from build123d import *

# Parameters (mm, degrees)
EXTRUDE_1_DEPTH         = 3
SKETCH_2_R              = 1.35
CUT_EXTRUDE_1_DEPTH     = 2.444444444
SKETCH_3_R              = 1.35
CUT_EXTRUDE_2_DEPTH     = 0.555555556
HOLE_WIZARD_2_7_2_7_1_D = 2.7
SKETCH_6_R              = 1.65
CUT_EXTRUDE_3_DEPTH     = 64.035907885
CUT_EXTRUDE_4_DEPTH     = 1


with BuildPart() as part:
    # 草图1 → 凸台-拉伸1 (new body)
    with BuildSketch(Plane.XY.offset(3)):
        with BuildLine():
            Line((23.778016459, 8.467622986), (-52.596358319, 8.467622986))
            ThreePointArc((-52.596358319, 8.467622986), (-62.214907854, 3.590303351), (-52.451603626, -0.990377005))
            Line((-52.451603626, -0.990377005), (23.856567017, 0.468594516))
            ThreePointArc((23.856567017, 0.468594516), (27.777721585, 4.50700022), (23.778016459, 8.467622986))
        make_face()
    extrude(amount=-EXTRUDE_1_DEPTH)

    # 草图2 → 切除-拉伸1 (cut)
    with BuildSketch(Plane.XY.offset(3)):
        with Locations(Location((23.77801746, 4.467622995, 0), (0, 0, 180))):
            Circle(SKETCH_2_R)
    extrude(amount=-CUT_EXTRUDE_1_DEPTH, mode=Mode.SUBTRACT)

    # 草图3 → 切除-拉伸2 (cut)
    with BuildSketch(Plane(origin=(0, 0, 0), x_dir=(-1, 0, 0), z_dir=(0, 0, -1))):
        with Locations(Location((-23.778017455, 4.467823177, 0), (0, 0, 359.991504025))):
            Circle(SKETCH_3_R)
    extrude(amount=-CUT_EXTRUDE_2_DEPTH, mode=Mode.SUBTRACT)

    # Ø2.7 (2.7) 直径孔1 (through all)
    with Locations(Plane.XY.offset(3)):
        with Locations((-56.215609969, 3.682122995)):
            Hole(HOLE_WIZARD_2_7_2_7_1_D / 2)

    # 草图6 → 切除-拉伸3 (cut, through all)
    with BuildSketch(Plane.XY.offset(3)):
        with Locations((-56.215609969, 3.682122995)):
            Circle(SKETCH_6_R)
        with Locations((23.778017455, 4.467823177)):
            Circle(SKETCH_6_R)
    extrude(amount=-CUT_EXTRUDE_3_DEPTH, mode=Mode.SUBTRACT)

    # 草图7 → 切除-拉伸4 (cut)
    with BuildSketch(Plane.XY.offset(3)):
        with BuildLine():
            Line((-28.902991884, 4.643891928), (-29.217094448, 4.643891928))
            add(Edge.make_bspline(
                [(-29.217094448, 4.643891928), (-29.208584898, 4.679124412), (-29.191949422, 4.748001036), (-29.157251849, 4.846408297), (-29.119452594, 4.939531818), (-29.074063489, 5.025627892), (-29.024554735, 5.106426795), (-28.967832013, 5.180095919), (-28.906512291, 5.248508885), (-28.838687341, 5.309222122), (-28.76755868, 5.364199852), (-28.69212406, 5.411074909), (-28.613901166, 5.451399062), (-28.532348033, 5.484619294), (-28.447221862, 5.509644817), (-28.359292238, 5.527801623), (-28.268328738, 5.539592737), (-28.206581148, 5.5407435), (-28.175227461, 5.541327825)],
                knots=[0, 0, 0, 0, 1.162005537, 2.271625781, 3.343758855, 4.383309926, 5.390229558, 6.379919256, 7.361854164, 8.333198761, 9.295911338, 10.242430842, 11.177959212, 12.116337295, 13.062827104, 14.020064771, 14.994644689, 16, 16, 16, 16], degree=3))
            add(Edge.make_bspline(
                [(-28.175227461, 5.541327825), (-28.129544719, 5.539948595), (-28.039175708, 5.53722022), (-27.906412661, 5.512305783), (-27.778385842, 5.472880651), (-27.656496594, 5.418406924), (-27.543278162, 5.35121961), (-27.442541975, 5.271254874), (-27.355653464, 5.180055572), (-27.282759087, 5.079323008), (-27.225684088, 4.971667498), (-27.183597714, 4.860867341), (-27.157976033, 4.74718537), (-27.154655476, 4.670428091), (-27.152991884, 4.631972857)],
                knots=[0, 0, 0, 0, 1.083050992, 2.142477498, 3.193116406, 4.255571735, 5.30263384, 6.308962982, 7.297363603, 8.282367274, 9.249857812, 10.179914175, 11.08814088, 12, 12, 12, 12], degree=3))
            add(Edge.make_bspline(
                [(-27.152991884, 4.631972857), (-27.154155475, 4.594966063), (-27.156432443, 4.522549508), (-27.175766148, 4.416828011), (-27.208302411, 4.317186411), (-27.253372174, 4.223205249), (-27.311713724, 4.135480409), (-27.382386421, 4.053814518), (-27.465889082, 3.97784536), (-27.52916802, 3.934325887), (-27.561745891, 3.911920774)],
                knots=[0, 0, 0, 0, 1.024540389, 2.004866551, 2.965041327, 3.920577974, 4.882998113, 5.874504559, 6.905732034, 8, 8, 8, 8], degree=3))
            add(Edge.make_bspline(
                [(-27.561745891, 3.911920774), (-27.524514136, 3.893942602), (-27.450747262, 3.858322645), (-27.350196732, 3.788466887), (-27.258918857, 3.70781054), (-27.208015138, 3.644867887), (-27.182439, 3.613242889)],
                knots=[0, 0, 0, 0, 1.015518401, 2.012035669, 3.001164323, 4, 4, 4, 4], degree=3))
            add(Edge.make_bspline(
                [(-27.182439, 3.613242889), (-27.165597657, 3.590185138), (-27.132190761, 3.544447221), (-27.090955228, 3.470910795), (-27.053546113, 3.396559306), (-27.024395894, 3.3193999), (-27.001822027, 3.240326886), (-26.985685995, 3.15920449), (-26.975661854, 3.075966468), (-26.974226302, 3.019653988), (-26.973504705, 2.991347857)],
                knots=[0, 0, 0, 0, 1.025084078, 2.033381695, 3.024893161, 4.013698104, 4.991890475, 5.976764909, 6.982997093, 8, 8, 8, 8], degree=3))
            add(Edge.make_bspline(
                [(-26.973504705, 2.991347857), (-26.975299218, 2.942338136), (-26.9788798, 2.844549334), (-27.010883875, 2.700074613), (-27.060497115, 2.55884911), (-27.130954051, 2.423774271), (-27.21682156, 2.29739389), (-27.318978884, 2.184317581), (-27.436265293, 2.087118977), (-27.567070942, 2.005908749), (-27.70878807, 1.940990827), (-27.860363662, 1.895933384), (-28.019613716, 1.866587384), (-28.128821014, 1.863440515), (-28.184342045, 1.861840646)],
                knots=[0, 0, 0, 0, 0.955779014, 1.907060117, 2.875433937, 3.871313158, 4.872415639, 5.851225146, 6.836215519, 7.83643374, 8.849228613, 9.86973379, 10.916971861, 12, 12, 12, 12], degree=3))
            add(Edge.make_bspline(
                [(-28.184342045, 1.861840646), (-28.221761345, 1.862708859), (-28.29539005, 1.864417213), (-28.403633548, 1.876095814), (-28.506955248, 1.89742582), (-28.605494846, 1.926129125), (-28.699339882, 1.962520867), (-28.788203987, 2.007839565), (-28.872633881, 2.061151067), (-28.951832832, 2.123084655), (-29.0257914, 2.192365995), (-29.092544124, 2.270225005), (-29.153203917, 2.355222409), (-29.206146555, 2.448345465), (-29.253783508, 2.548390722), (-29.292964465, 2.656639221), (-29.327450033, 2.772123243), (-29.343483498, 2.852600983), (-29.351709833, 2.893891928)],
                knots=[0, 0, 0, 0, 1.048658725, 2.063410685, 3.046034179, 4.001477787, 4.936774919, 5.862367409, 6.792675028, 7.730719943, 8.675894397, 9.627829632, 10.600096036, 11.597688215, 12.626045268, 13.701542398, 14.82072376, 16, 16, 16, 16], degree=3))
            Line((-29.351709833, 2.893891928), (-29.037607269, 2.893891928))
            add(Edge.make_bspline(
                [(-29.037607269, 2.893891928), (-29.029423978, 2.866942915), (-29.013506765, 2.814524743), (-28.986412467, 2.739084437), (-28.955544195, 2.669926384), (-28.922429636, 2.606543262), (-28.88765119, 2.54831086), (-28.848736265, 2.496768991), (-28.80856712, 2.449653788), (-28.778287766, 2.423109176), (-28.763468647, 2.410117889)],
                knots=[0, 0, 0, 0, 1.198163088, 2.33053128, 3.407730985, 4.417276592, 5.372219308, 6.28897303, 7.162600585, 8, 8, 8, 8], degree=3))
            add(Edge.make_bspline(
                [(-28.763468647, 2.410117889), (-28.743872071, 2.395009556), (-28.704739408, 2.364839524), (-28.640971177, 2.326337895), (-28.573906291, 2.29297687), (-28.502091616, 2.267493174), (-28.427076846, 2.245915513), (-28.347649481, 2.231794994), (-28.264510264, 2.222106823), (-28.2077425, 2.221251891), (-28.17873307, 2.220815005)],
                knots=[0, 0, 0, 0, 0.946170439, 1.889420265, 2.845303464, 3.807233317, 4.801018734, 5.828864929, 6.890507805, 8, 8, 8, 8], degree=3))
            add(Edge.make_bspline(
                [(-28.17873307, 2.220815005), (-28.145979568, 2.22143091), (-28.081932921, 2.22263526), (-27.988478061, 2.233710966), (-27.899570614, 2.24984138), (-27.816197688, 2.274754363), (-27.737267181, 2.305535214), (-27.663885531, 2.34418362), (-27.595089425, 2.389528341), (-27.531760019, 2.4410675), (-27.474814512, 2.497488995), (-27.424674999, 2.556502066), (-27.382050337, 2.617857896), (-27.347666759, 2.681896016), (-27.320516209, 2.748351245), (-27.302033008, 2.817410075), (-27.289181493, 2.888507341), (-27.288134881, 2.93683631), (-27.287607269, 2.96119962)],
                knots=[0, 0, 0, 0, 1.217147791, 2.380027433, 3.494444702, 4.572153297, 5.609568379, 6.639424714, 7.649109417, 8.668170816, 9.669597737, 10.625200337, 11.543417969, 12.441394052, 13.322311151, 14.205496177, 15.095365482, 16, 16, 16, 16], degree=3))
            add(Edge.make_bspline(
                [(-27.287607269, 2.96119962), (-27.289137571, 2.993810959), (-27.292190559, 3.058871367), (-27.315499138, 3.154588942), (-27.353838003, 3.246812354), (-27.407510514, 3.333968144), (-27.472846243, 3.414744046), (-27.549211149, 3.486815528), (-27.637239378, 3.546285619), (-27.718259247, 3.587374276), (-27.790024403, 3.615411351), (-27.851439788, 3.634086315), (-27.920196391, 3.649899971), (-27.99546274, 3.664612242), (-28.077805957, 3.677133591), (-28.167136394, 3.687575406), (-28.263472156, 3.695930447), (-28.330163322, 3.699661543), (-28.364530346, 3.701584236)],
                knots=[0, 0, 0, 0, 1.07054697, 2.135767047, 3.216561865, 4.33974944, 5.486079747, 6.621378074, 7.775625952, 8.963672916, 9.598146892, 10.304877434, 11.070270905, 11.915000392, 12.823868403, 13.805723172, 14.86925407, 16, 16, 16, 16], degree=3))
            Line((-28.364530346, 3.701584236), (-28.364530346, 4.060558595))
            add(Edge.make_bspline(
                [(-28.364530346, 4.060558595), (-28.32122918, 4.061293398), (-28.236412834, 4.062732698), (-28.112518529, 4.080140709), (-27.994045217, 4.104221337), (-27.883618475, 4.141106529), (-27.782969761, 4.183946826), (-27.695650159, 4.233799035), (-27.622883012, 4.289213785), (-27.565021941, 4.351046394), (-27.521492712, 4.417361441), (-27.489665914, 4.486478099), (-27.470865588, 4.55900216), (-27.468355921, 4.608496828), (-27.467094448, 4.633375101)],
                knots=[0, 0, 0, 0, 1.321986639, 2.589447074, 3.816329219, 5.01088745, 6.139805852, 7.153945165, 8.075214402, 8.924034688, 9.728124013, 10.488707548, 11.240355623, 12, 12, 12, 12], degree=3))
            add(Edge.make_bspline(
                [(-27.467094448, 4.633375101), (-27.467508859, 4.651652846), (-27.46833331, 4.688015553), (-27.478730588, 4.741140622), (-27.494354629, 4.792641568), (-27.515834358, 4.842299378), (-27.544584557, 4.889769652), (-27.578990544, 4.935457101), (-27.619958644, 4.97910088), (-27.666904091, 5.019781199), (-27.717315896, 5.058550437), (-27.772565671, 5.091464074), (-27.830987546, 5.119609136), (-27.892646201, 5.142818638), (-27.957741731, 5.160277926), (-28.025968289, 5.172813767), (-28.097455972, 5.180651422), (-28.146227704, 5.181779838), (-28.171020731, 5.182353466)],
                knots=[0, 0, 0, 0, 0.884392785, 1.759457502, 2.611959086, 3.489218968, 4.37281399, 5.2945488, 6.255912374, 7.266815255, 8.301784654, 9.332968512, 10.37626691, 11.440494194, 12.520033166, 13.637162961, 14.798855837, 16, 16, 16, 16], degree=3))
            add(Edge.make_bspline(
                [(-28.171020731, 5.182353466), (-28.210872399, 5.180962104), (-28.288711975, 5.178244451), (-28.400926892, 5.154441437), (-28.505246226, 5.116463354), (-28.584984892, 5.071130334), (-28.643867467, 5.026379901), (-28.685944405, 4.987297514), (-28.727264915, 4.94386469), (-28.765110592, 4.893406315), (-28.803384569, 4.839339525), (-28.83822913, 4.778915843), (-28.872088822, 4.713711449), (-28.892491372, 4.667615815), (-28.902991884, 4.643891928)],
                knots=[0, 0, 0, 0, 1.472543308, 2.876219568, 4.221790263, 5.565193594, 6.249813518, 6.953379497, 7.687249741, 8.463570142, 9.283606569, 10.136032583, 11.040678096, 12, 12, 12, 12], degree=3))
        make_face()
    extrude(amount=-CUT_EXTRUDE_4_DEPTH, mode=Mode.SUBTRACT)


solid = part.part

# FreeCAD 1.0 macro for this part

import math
import FreeCAD as App
import Part
import Sketcher

V = App.Vector

doc = App.newDocument("Part")
params = doc.addObject("Spreadsheet::Sheet", "Params")
for row, (alias, value) in enumerate([
    ("sketch1_radius", "6 mm"),
    ("pad1_length", "3 mm"),
    ("sketch2_diameter", "2.7 mm"),
    ("pocket1_length", "2.444444 mm"),
    ("sketch3_diameter", "2.7 mm"),
    ("pocket2_length", "0.555556 mm"),
    ("sketch4_diameter", "2.7 mm"),
    ("hole_diameter", "2.7 mm"),
    ("sketch5_diameter", "3.3 mm"),
    ("pocket4_length", "1 mm"),
], start=1):
    params.set(f"A{row}", alias)
    params.set(f"B{row}", "=" + value)
    params.setAlias(f"B{row}", alias)

body = doc.addObject("PartDesign::Body", "Body")

# Sketch on XY plane
sketch1 = doc.addObject("Sketcher::SketchObject", "Sketch")
body.addObject(sketch1)
sketch1.AttachmentSupport = (doc.XY_Plane, [""])
sketch1.MapMode = "FlatFace"
sketch1.AttachmentOffset = App.Placement(V(0, 0, 3), App.Rotation())
sketch1.addGeometry([
    Part.LineSegment(V(23.8, 8.5, 0), V(-52.6, 8.5, 0)),
    Part.ArcOfCircle(Part.Circle(V(-56.2, 3.7, 0), V(0, 0, 1), 6), math.radians(53), math.radians(309)),
    Part.LineSegment(V(-52.5, -1, 0), V(23.9, 0.5, 0)),
    Part.ArcOfCircle(Part.Circle(V(23.8, 4.5, 0), V(0, 0, 1), 4), math.radians(-89), math.radians(90)),
], False)
sketch1.addConstraint([
    Sketcher.Constraint("Coincident", 0, 2, 1, 1),
    Sketcher.Constraint("Coincident", 1, 2, 2, 1),
    Sketcher.Constraint("Coincident", 2, 2, 3, 1),
    Sketcher.Constraint("Tangent", 3, 2, 0, 1),
    Sketcher.Constraint("Horizontal", 0),
    Sketcher.Constraint("Radius", 1, 6.0),
    Sketcher.Constraint("Radius", 3, 3.9999),
    Sketcher.Constraint("DistanceY", 1, 2, 0, 2, 9.458),
    Sketcher.Constraint("DistanceY", 1, 3, 3, 3, 0.7856),
    Sketcher.Constraint("DistanceX", 0, 2, 0, 1, 76.374375),
    Sketcher.Constraint("DistanceX", 1, 3, -1, 1, 56.21561),
    Sketcher.Constraint("DistanceY", 2, 2, 3, 3, 3.999129),
    Sketcher.Constraint("DistanceY", -1, 1, 1, 3, 3.682123),
])
sketch1.setExpression("Constraints[5]", "Params.sketch1_radius")
pad1 = doc.addObject("PartDesign::Pad", "Pad")
body.addObject(pad1)
pad1.Profile = sketch1
pad1.setExpression("Length", "Params.pad1_length")
pad1.Reversed = True

# Sketch on XY plane
sketch2 = doc.addObject("Sketcher::SketchObject", "Sketch001")
body.addObject(sketch2)
sketch2.AttachmentSupport = (doc.XY_Plane, [""])
sketch2.MapMode = "FlatFace"
sketch2.AttachmentOffset = App.Placement(V(0, 0, 3), App.Rotation())
sketch2.addGeometry(Part.Circle(V(23.8, 4.5, 0), V(0, 0, 1), 1.4), False)
sketch2.addConstraint([
    Sketcher.Constraint("Diameter", 0, 2.7),
    Sketcher.Constraint("DistanceX", -1, 1, 0, 3, 23.778017),
    Sketcher.Constraint("DistanceY", -1, 1, 0, 3, 4.467623),
])
sketch2.setExpression("Constraints[0]", "Params.sketch2_diameter")
pocket1 = doc.addObject("PartDesign::Pocket", "Pocket")
body.addObject(pocket1)
pocket1.Profile = sketch2
pocket1.setExpression("Length", "Params.pocket1_length")

# Sketch on XY plane
sketch3 = doc.addObject("Sketcher::SketchObject", "Sketch002")
body.addObject(sketch3)
sketch3.AttachmentSupport = (doc.XY_Plane, [""])
sketch3.MapMode = "FlatFace"
sketch3.addGeometry(Part.Circle(V(23.8, 4.5, 0), V(0, 0, 1), 1.4), False)
sketch3.addConstraint([
    Sketcher.Constraint("Diameter", 0, 2.7),
    Sketcher.Constraint("DistanceX", -1, 1, 0, 3, 23.778017),
    Sketcher.Constraint("DistanceY", -1, 1, 0, 3, 4.467823),
])
sketch3.setExpression("Constraints[0]", "Params.sketch3_diameter")
pocket2 = doc.addObject("PartDesign::Pocket", "Pocket001")
body.addObject(pocket2)
pocket2.Profile = sketch3
pocket2.setExpression("Length", "Params.pocket2_length")
pocket2.Reversed = True

# Sketch on XY plane
sketch4 = doc.addObject("Sketcher::SketchObject", "Sketch003")
body.addObject(sketch4)
sketch4.AttachmentSupport = (doc.XY_Plane, [""])
sketch4.MapMode = "FlatFace"
sketch4.AttachmentOffset = App.Placement(V(0, 0, 3), App.Rotation())
sketch4.addGeometry(Part.Circle(V(-56.2, 3.7, 0), V(0, 0, 1), 1.4), False)
sketch4.addConstraint([
    Sketcher.Constraint("Diameter", 0, 2.7),
    Sketcher.Constraint("DistanceX", 0, 3, -1, 1, 56.21561),
    Sketcher.Constraint("DistanceY", -1, 1, 0, 3, 3.682123),
])
sketch4.setExpression("Constraints[0]", "Params.sketch4_diameter")
doc.recompute()
hole = doc.addObject("PartDesign::Hole", "Hole")
body.addObject(hole)
hole.Profile = sketch4
hole.ThreadType = "None"
hole.setExpression("Diameter", "Params.hole_diameter")
hole.DepthType = "ThroughAll"

# Sketch on XY plane
sketch5 = doc.addObject("Sketcher::SketchObject", "Sketch004")
body.addObject(sketch5)
sketch5.AttachmentSupport = (doc.XY_Plane, [""])
sketch5.MapMode = "FlatFace"
sketch5.AttachmentOffset = App.Placement(V(0, 0, 3), App.Rotation())
sketch5.addGeometry([
    Part.Circle(V(-56.2, 3.7, 0), V(0, 0, 1), 1.6),
    Part.Circle(V(23.8, 4.5, 0), V(0, 0, 1), 1.6),
], False)
sketch5.addConstraint([
    Sketcher.Constraint("Equal", 0, 1),
    Sketcher.Constraint("Diameter", 0, 3.3),
    Sketcher.Constraint("DistanceY", 0, 3, 1, 3, 0.7857),
    Sketcher.Constraint("DistanceX", 0, 3, -1, 1, 56.21561),
    Sketcher.Constraint("DistanceY", -1, 1, 0, 3, 3.682123),
    Sketcher.Constraint("DistanceX", -1, 1, 1, 3, 23.778017),
])
sketch5.setExpression("Constraints[1]", "Params.sketch5_diameter")
pocket3 = doc.addObject("PartDesign::Pocket", "Pocket002")
body.addObject(pocket3)
pocket3.Profile = sketch5
pocket3.Type = "ThroughAll"

# Sketch on XY plane
sketch6 = doc.addObject("Sketcher::SketchObject", "Sketch005")
body.addObject(sketch6)
sketch6.AttachmentSupport = (doc.XY_Plane, [""])
sketch6.MapMode = "FlatFace"
sketch6.AttachmentOffset = App.Placement(V(0, 0, 3), App.Rotation())
sketch6.addGeometry([
    Part.LineSegment(V(-29.217094, 4.643892, 0), V(-28.902992, 4.643892, 0)),  # 0
    Part.BSplineCurve([V(-28.171021, 5.182353, 0), V(-28.210872, 5.180962, 0), V(-28.288712, 5.178244, 0), V(-28.400927, 5.154441, 0), V(-28.505246, 5.116463, 0), V(-28.584985, 5.07113, 0), V(-28.643867, 5.02638, 0), V(-28.685944, 4.987298, 0), V(-28.727265, 4.943865, 0), V(-28.765111, 4.893406, 0), V(-28.803385, 4.83934, 0), V(-28.838229, 4.778916, 0), V(-28.872089, 4.713711, 0), V(-28.892491, 4.667616, 0), V(-28.902992, 4.643892, 0)], [4, 1, 1, 1, 1, 1, 1, 1, 1, 1, 1, 1, 4], [0, 1.472543308, 2.876219568, 4.221790263, 5.565193594, 6.249813518, 6.953379497, 7.687249741, 8.463570142, 9.283606569, 10.136032583, 11.040678096, 12], False, 3, [1, 1, 1, 1, 1, 1, 1, 1, 1, 1, 1, 1, 1, 1, 1], False),  # 1
    Part.BSplineCurve([V(-27.467094, 4.633375, 0), V(-27.467509, 4.651653, 0), V(-27.468333, 4.688016, 0), V(-27.478731, 4.741141, 0), V(-27.494355, 4.792642, 0), V(-27.515834, 4.842299, 0), V(-27.544585, 4.88977, 0), V(-27.578991, 4.935457, 0), V(-27.619959, 4.979101, 0), V(-27.666904, 5.019781, 0), V(-27.717316, 5.05855, 0), V(-27.772566, 5.091464, 0), V(-27.830988, 5.119609, 0), V(-27.892646, 5.142819, 0), V(-27.957742, 5.160278, 0), V(-28.025968, 5.172814, 0), V(-28.097456, 5.180651, 0), V(-28.146228, 5.18178, 0), V(-28.171021, 5.182353, 0)], [4, 1, 1, 1, 1, 1, 1, 1, 1, 1, 1, 1, 1, 1, 1, 1, 4], [0, 0.884392785, 1.759457502, 2.611959086, 3.489218968, 4.37281399, 5.2945488, 6.255912374, 7.266815255, 8.301784654, 9.332968512, 10.37626691, 11.440494194, 12.520033166, 13.637162961, 14.798855837, 16], False, 3, [1, 1, 1, 1, 1, 1, 1, 1, 1, 1, 1, 1, 1, 1, 1, 1, 1, 1, 1], False),  # 2
    Part.BSplineCurve([V(-28.36453, 4.060559, 0), V(-28.321229, 4.061293, 0), V(-28.236413, 4.062733, 0), V(-28.112519, 4.080141, 0), V(-27.994045, 4.104221, 0), V(-27.883618, 4.141107, 0), V(-27.78297, 4.183947, 0), V(-27.69565, 4.233799, 0), V(-27.622883, 4.289214, 0), V(-27.565022, 4.351046, 0), V(-27.521493, 4.417361, 0), V(-27.489666, 4.486478, 0), V(-27.470866, 4.559002, 0), V(-27.468356, 4.608497, 0), V(-27.467094, 4.633375, 0)], [4, 1, 1, 1, 1, 1, 1, 1, 1, 1, 1, 1, 4], [0, 1.321986639, 2.589447074, 3.816329219, 5.01088745, 6.139805852, 7.153945165, 8.075214402, 8.924034688, 9.728124013, 10.488707548, 11.240355623, 12], False, 3, [1, 1, 1, 1, 1, 1, 1, 1, 1, 1, 1, 1, 1, 1, 1], False),  # 3
    Part.LineSegment(V(-28.36453, 4.060559, 0), V(-28.36453, 3.701584, 0)),  # 4
    Part.BSplineCurve([V(-27.287607, 2.9612, 0), V(-27.289138, 2.993811, 0), V(-27.292191, 3.058871, 0), V(-27.315499, 3.154589, 0), V(-27.353838, 3.246812, 0), V(-27.407511, 3.333968, 0), V(-27.472846, 3.414744, 0), V(-27.549211, 3.486816, 0), V(-27.637239, 3.546286, 0), V(-27.718259, 3.587374, 0), V(-27.790024, 3.615411, 0), V(-27.85144, 3.634086, 0), V(-27.920196, 3.6499, 0), V(-27.995463, 3.664612, 0), V(-28.077806, 3.677134, 0), V(-28.167136, 3.687575, 0), V(-28.263472, 3.69593, 0), V(-28.330163, 3.699662, 0), V(-28.36453, 3.701584, 0)], [4, 1, 1, 1, 1, 1, 1, 1, 1, 1, 1, 1, 1, 1, 1, 1, 4], [0, 1.07054697, 2.135767047, 3.216561865, 4.33974944, 5.486079747, 6.621378074, 7.775625952, 8.963672916, 9.598146892, 10.304877434, 11.070270905, 11.915000392, 12.823868403, 13.805723172, 14.86925407, 16], False, 3, [1, 1, 1, 1, 1, 1, 1, 1, 1, 1, 1, 1, 1, 1, 1, 1, 1, 1, 1], False),  # 5
    Part.BSplineCurve([V(-28.178733, 2.220815, 0), V(-28.14598, 2.221431, 0), V(-28.081933, 2.222635, 0), V(-27.988478, 2.233711, 0), V(-27.899571, 2.249841, 0), V(-27.816198, 2.274754, 0), V(-27.737267, 2.305535, 0), V(-27.663886, 2.344184, 0), V(-27.595089, 2.389528, 0), V(-27.53176, 2.441067, 0), V(-27.474815, 2.497489, 0), V(-27.424675, 2.556502, 0), V(-27.38205, 2.617858, 0), V(-27.347667, 2.681896, 0), V(-27.320516, 2.748351, 0), V(-27.302033, 2.81741, 0), V(-27.289181, 2.888507, 0), V(-27.288135, 2.936836, 0), V(-27.287607, 2.9612, 0)], [4, 1, 1, 1, 1, 1, 1, 1, 1, 1, 1, 1, 1, 1, 1, 1, 4], [0, 1.217147791, 2.380027433, 3.494444702, 4.572153297, 5.609568379, 6.639424714, 7.649109417, 8.668170816, 9.669597737, 10.625200337, 11.543417969, 12.441394052, 13.322311151, 14.205496177, 15.095365482, 16], False, 3, [1, 1, 1, 1, 1, 1, 1, 1, 1, 1, 1, 1, 1, 1, 1, 1, 1, 1, 1], False),  # 6
    Part.BSplineCurve([V(-28.763469, 2.410118, 0), V(-28.743872, 2.39501, 0), V(-28.704739, 2.36484, 0), V(-28.640971, 2.326338, 0), V(-28.573906, 2.292977, 0), V(-28.502092, 2.267493, 0), V(-28.427077, 2.245916, 0), V(-28.347649, 2.231795, 0), V(-28.26451, 2.222107, 0), V(-28.207742, 2.221252, 0), V(-28.178733, 2.220815, 0)], [4, 1, 1, 1, 1, 1, 1, 1, 4], [0, 0.946170439, 1.889420265, 2.845303464, 3.807233317, 4.801018734, 5.828864929, 6.890507805, 8], False, 3, [1, 1, 1, 1, 1, 1, 1, 1, 1, 1, 1], False),  # 7
    Part.BSplineCurve([V(-29.037607, 2.893892, 0), V(-29.029424, 2.866943, 0), V(-29.013507, 2.814525, 0), V(-28.986412, 2.739084, 0), V(-28.955544, 2.669926, 0), V(-28.92243, 2.606543, 0), V(-28.887651, 2.548311, 0), V(-28.848736, 2.496769, 0), V(-28.808567, 2.449654, 0), V(-28.778288, 2.423109, 0), V(-28.763469, 2.410118, 0)], [4, 1, 1, 1, 1, 1, 1, 1, 4], [0, 1.198163088, 2.33053128, 3.407730985, 4.417276592, 5.372219308, 6.28897303, 7.162600585, 8], False, 3, [1, 1, 1, 1, 1, 1, 1, 1, 1, 1, 1], False),  # 8
    Part.LineSegment(V(-29.037607, 2.893892, 0), V(-29.35171, 2.893892, 0)),  # 9
    Part.BSplineCurve([V(-28.184342, 1.861841, 0), V(-28.221761, 1.862709, 0), V(-28.29539, 1.864417, 0), V(-28.403634, 1.876096, 0), V(-28.506955, 1.897426, 0), V(-28.605495, 1.926129, 0), V(-28.69934, 1.962521, 0), V(-28.788204, 2.00784, 0), V(-28.872634, 2.061151, 0), V(-28.951833, 2.123085, 0), V(-29.025791, 2.192366, 0), V(-29.092544, 2.270225, 0), V(-29.153204, 2.355222, 0), V(-29.206147, 2.448345, 0), V(-29.253784, 2.548391, 0), V(-29.292964, 2.656639, 0), V(-29.32745, 2.772123, 0), V(-29.343483, 2.852601, 0), V(-29.35171, 2.893892, 0)], [4, 1, 1, 1, 1, 1, 1, 1, 1, 1, 1, 1, 1, 1, 1, 1, 4], [0, 1.048658725, 2.063410685, 3.046034179, 4.001477787, 4.936774919, 5.862367409, 6.792675028, 7.730719943, 8.675894397, 9.627829632, 10.600096036, 11.597688215, 12.626045268, 13.701542398, 14.82072376, 16], False, 3, [1, 1, 1, 1, 1, 1, 1, 1, 1, 1, 1, 1, 1, 1, 1, 1, 1, 1, 1], False),  # 10
    Part.BSplineCurve([V(-26.973505, 2.991348, 0), V(-26.975299, 2.942338, 0), V(-26.97888, 2.844549, 0), V(-27.010884, 2.700075, 0), V(-27.060497, 2.558849, 0), V(-27.130954, 2.423774, 0), V(-27.216822, 2.297394, 0), V(-27.318979, 2.184318, 0), V(-27.436265, 2.087119, 0), V(-27.567071, 2.005909, 0), V(-27.708788, 1.940991, 0), V(-27.860364, 1.895933, 0), V(-28.019614, 1.866587, 0), V(-28.128821, 1.863441, 0), V(-28.184342, 1.861841, 0)], [4, 1, 1, 1, 1, 1, 1, 1, 1, 1, 1, 1, 4], [0, 0.955779014, 1.907060117, 2.875433937, 3.871313158, 4.872415639, 5.851225146, 6.836215519, 7.83643374, 8.849228613, 9.86973379, 10.916971861, 12], False, 3, [1, 1, 1, 1, 1, 1, 1, 1, 1, 1, 1, 1, 1, 1, 1], False),  # 11
    Part.BSplineCurve([V(-27.182439, 3.613243, 0), V(-27.165598, 3.590185, 0), V(-27.132191, 3.544447, 0), V(-27.090955, 3.470911, 0), V(-27.053546, 3.396559, 0), V(-27.024396, 3.3194, 0), V(-27.001822, 3.240327, 0), V(-26.985686, 3.159204, 0), V(-26.975662, 3.075966, 0), V(-26.974226, 3.019654, 0), V(-26.973505, 2.991348, 0)], [4, 1, 1, 1, 1, 1, 1, 1, 4], [0, 1.025084078, 2.033381695, 3.024893161, 4.013698104, 4.991890475, 5.976764909, 6.982997093, 8], False, 3, [1, 1, 1, 1, 1, 1, 1, 1, 1, 1, 1], False),  # 12
    Part.BSplineCurve([V(-27.561746, 3.911921, 0), V(-27.524514, 3.893943, 0), V(-27.450747, 3.858323, 0), V(-27.350197, 3.788467, 0), V(-27.258919, 3.707811, 0), V(-27.208015, 3.644868, 0), V(-27.182439, 3.613243, 0)], [4, 1, 1, 1, 4], [0, 1.015518401, 2.012035669, 3.001164323, 4], False, 3, [1, 1, 1, 1, 1, 1, 1], False),  # 13
    Part.BSplineCurve([V(-27.152992, 4.631973, 0), V(-27.154155, 4.594966, 0), V(-27.156432, 4.52255, 0), V(-27.175766, 4.416828, 0), V(-27.208302, 4.317186, 0), V(-27.253372, 4.223205, 0), V(-27.311714, 4.13548, 0), V(-27.382386, 4.053815, 0), V(-27.465889, 3.977845, 0), V(-27.529168, 3.934326, 0), V(-27.561746, 3.911921, 0)], [4, 1, 1, 1, 1, 1, 1, 1, 4], [0, 1.024540389, 2.004866551, 2.965041327, 3.920577974, 4.882998113, 5.874504559, 6.905732034, 8], False, 3, [1, 1, 1, 1, 1, 1, 1, 1, 1, 1, 1], False),  # 14
    Part.BSplineCurve([V(-28.175227, 5.541328, 0), V(-28.129545, 5.539949, 0), V(-28.039176, 5.53722, 0), V(-27.906413, 5.512306, 0), V(-27.778386, 5.472881, 0), V(-27.656497, 5.418407, 0), V(-27.543278, 5.35122, 0), V(-27.442542, 5.271255, 0), V(-27.355653, 5.180056, 0), V(-27.282759, 5.079323, 0), V(-27.225684, 4.971667, 0), V(-27.183598, 4.860867, 0), V(-27.157976, 4.747185, 0), V(-27.154655, 4.670428, 0), V(-27.152992, 4.631973, 0)], [4, 1, 1, 1, 1, 1, 1, 1, 1, 1, 1, 1, 4], [0, 1.083050992, 2.142477498, 3.193116406, 4.255571735, 5.30263384, 6.308962982, 7.297363603, 8.282367274, 9.249857812, 10.179914175, 11.08814088, 12], False, 3, [1, 1, 1, 1, 1, 1, 1, 1, 1, 1, 1, 1, 1, 1, 1], False),  # 15
    Part.BSplineCurve([V(-29.217094, 4.643892, 0), V(-29.208585, 4.679124, 0), V(-29.191949, 4.748001, 0), V(-29.157252, 4.846408, 0), V(-29.119453, 4.939532, 0), V(-29.074063, 5.025628, 0), V(-29.024555, 5.106427, 0), V(-28.967832, 5.180096, 0), V(-28.906512, 5.248509, 0), V(-28.838687, 5.309222, 0), V(-28.767559, 5.3642, 0), V(-28.692124, 5.411075, 0), V(-28.613901, 5.451399, 0), V(-28.532348, 5.484619, 0), V(-28.447222, 5.509645, 0), V(-28.359292, 5.527802, 0), V(-28.268329, 5.539593, 0), V(-28.206581, 5.540743, 0), V(-28.175227, 5.541328, 0)], [4, 1, 1, 1, 1, 1, 1, 1, 1, 1, 1, 1, 1, 1, 1, 1, 4], [0, 1.162005537, 2.271625781, 3.343758855, 4.383309926, 5.390229558, 6.379919256, 7.361854164, 8.333198761, 9.295911338, 10.242430842, 11.177959212, 12.116337295, 13.062827104, 14.020064771, 14.994644689, 16], False, 3, [1, 1, 1, 1, 1, 1, 1, 1, 1, 1, 1, 1, 1, 1, 1, 1, 1, 1, 1], False),  # 16
], False)
sketch6.addConstraint([
    Sketcher.Constraint("Block", 1),
    Sketcher.Constraint("Block", 2),
    Sketcher.Constraint("Block", 3),
    Sketcher.Constraint("Block", 5),
    Sketcher.Constraint("Block", 6),
    Sketcher.Constraint("Block", 7),
    Sketcher.Constraint("Block", 8),
    Sketcher.Constraint("Block", 10),
    Sketcher.Constraint("Block", 11),
    Sketcher.Constraint("Block", 12),
    Sketcher.Constraint("Block", 13),
    Sketcher.Constraint("Block", 14),
    Sketcher.Constraint("Block", 15),
    Sketcher.Constraint("Block", 16),
    Sketcher.Constraint("Coincident", 0, 2, 1, 2),
    Sketcher.Constraint("Coincident", 3, 1, 4, 1),
    Sketcher.Constraint("Coincident", 4, 2, 5, 2),
    Sketcher.Constraint("Coincident", 8, 1, 9, 1),
    Sketcher.Constraint("Coincident", 9, 2, 10, 2),
    Sketcher.Constraint("Coincident", 16, 1, 0, 1),
])
pocket4 = doc.addObject("PartDesign::Pocket", "Pocket003")
body.addObject(pocket4)
pocket4.Profile = sketch6
pocket4.setExpression("Length", "Params.pocket4_length")

doc.recompute()
